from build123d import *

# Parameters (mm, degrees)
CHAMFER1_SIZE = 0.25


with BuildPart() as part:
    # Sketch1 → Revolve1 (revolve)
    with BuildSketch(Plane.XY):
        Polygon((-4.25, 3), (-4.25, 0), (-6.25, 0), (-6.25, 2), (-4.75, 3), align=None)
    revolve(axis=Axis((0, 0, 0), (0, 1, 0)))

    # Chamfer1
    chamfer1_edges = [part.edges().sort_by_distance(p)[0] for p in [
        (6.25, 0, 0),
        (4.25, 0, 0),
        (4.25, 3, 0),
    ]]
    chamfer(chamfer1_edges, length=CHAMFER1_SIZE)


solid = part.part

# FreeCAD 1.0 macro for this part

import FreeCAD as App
import Part
import Sketcher

V = App.Vector


def edges_at(feature, points):
    """Names of the edges that pass closest to the given points."""
    edges = feature.Shape.Edges
    near = lambda p: min(range(len(edges)), key=lambda i: edges[i].distToShape(Part.Vertex(*p))[0])
    return sorted({f"Edge{near(p) + 1}" for p in points})

doc = App.newDocument("Part")
body = doc.addObject("PartDesign::Body", "Body")

# Sketch on XY plane
sketch1 = body.newObject("Sketcher::SketchObject", "Sketch")
sketch1.AttachmentSupport = (doc.getObject("XY_Plane"), [""])
sketch1.MapMode = "FlatFace"
sketch1.addGeometry(Part.LineSegment(V(-4.2, 0, 0), V(-4.2, 3, 0)), False)
sketch1.addGeometry(Part.LineSegment(V(-4.2, 3, 0), V(-4.8, 3, 0)), False)
sketch1.addGeometry(Part.LineSegment(V(-4.8, 3, 0), V(-6.2, 2, 0)), False)
sketch1.addGeometry(Part.LineSegment(V(-6.2, 2, 0), V(-6.2, 0, 0)), False)
sketch1.addGeometry(Part.LineSegment(V(-6.2, 0, 0), V(-4.2, 0, 0)), False)
sketch1.addConstraint(Sketcher.Constraint("Coincident", 0, 2, 1, 1))
sketch1.addConstraint(Sketcher.Constraint("Coincident", 1, 2, 2, 1))
sketch1.addConstraint(Sketcher.Constraint("Coincident", 2, 2, 3, 1))
sketch1.addConstraint(Sketcher.Constraint("Coincident", 3, 2, 4, 1))
sketch1.addConstraint(Sketcher.Constraint("Coincident", 4, 2, 0, 1))
sketch1.addConstraint(Sketcher.Constraint("Vertical", 0))
sketch1.addConstraint(Sketcher.Constraint("Horizontal", 1))
sketch1.addConstraint(Sketcher.Constraint("Vertical", 3))
sketch1.addConstraint(Sketcher.Constraint("Horizontal", 4))
sketch1.addConstraint(Sketcher.Constraint("PointOnObject", 3, 2, -1))
sketch1.addConstraint(Sketcher.Constraint("Equal", 4, 3))
sketch1.addConstraint(Sketcher.Constraint("DistanceX", 4, 1, 4, 2, 2.0))
sketch1.addConstraint(Sketcher.Constraint("DistanceY", 0, 1, 0, 2, 3.0))
sketch1.addConstraint(Sketcher.Constraint("DistanceX", 1, 2, 1, 1, 0.5))
sketch1.addConstraint(Sketcher.Constraint("DistanceX", 0, 2, -1, 1, 4.25))
revolution = body.newObject("PartDesign::Revolution", "Revolution")
revolution.Profile = sketch1
revolution.ReferenceAxis = (sketch1, ["V_Axis"])
revolution.Angle = 360
doc.recompute()

chamfer = body.newObject("PartDesign::Chamfer", "Chamfer")
chamfer.Base = (revolution, edges_at(revolution, [(6.25, 0, 0), (4.25, 0, 0), (4.25, 3, 0)]))
chamfer.Size = 0.25

doc.recompute()
